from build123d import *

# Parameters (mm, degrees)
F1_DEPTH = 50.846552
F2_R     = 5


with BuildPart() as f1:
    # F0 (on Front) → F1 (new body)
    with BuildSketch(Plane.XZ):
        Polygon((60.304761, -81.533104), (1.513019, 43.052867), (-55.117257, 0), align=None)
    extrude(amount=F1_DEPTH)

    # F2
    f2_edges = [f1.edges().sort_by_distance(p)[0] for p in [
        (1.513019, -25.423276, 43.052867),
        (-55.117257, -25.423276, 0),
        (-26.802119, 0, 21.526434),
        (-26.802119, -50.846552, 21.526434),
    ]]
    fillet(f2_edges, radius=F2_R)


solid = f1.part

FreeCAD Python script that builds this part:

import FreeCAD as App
import Part
import Sketcher
from FreeCAD import Vector
Q = App.Units.Quantity


def edges_at(feature, points):
    """Names of the edges that pass closest to the given points."""
    edges = feature.Shape.Edges
    near = lambda p: min(range(len(edges)), key=lambda i: edges[i].distToShape(Part.Vertex(*p))[0])
    return sorted({f"Edge{near(p) + 1}" for p in points})

doc = App.newDocument("Part")
body = doc.addObject("PartDesign::Body", "Body")

sketch1 = body.newObject("Sketcher::SketchObject", "Sketch")
sketch1.AttachmentSupport = (doc.getObject("XZ_Plane"), [""])
sketch1.MapMode = "FlatFace"
sketch1.addGeometry([
    Part.LineSegment(Vector(60, -82, 0), Vector(2, 43, 0)),
    Part.LineSegment(Vector(2, 43, 0), Vector(-55, 0, 0)),
    Part.LineSegment(Vector(-55, 0, 0), Vector(60, -82, 0)),
], False)
sketch1.addConstraint([
    Sketcher.Constraint("Coincident", 0, 2, 1, 1),
    Sketcher.Constraint("Coincident", 1, 2, 2, 1),
    Sketcher.Constraint("Coincident", 2, 2, 0, 1),
    Sketcher.Constraint("PointOnObject", 1, 2, -1),
    Sketcher.Constraint("Distance", 2, Q("141.314859 mm")),
    Sketcher.Constraint("DistanceX", -1, 1, 0, 2, Q("1.513019 mm")),
    Sketcher.Constraint("DistanceX", -1, 1, 2, 2, Q("60.304761 mm")),
    Sketcher.Constraint("DistanceY", 2, 2, 0, 2, Q("124.585971 mm")),
    Sketcher.Constraint("DistanceX", 1, 2, 2, 2, Q("115.422018 mm")),
])
pad1 = body.newObject("PartDesign::Pad", "Pad")
pad1.Profile = sketch1
pad1.Length = 50.846552
doc.recompute()

fillet = body.newObject("PartDesign::Fillet", "Fillet")
fillet.Base = (pad1, edges_at(pad1, [
    (1.513, -25.423, 43.053),
    (-55.117, -25.423, 0),
    (-26.802, 0, 21.526),
    (-26.802, -50.847, 21.526),
]))
fillet.Radius = 5

doc.recompute()
